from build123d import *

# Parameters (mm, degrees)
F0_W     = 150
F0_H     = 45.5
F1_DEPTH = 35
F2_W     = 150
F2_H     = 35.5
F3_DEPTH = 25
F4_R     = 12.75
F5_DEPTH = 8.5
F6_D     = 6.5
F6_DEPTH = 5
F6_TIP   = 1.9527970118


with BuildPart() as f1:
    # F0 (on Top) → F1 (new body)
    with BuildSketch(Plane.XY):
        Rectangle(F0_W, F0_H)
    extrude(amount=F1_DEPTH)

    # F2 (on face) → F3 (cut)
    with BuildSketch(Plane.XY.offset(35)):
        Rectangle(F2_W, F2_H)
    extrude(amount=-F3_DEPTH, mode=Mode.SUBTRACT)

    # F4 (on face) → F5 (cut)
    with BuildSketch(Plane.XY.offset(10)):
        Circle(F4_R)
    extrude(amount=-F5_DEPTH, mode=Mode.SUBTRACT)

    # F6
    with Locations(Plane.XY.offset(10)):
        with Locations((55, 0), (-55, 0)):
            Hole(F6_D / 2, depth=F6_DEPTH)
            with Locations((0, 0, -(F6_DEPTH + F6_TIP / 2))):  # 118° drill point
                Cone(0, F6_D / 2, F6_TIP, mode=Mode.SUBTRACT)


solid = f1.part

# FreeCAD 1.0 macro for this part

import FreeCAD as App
import Part
import Sketcher


def add_polygon(sketch, points):
    """Adds a closed chain of lines whose ends are joined by coincident constraints."""
    first, n = sketch.GeometryCount, len(points)
    for a, b in zip(points, points[1:] + points[:1]):
        sketch.addGeometry(Part.LineSegment(App.Vector(*a, 0), App.Vector(*b, 0)), False)
    for i in range(n):
        sketch.addConstraint(Sketcher.Constraint("Coincident", first + i, 2, first + (i + 1) % n, 1))

doc = App.newDocument("Part")
body = doc.addObject("PartDesign::Body", "Body")

sketch1 = doc.addObject("Sketcher::SketchObject", "Sketch")
body.addObject(sketch1)
sketch1.AttachmentSupport = (doc.XY_Plane, [""])
sketch1.MapMode = "FlatFace"
add_polygon(sketch1, [(-75, 22.75), (-75, -22.75), (75, -22.75), (75, 22.75)])
sketch1.addConstraint(Sketcher.Constraint("Vertical", 0))
sketch1.addConstraint(Sketcher.Constraint("Horizontal", 1))
sketch1.addConstraint(Sketcher.Constraint("Vertical", 2))
sketch1.addConstraint(Sketcher.Constraint("Horizontal", 3))
sketch1.addConstraint(Sketcher.Constraint("Symmetric", 0, 2, 2, 2, -1, 1))
sketch1.addConstraint(Sketcher.Constraint("DistanceX", 1, 1, 1, 2, 150.0))
sketch1.addConstraint(Sketcher.Constraint("DistanceY", 0, 2, 0, 1, 45.5))
pad1 = doc.addObject("PartDesign::Pad", "Pad")
body.addObject(pad1)
pad1.Profile = sketch1
pad1.Length = 35

sketch2 = doc.addObject("Sketcher::SketchObject", "Sketch001")
body.addObject(sketch2)
sketch2.AttachmentSupport = (doc.XY_Plane, [""])
sketch2.MapMode = "FlatFace"
sketch2.AttachmentOffset = App.Placement(App.Vector(0, 0, 35), App.Rotation())
add_polygon(sketch2, [(-75, 17.75), (-75, -17.75), (75, -17.75), (75, 17.75)])
sketch2.addConstraint(Sketcher.Constraint("Vertical", 0))
sketch2.addConstraint(Sketcher.Constraint("Horizontal", 1))
sketch2.addConstraint(Sketcher.Constraint("Vertical", 2))
sketch2.addConstraint(Sketcher.Constraint("Horizontal", 3))
sketch2.addConstraint(Sketcher.Constraint("Symmetric", 0, 2, 2, 2, -1, 1))
sketch2.addConstraint(Sketcher.Constraint("DistanceX", 1, 1, 1, 2, 150.0))
sketch2.addConstraint(Sketcher.Constraint("DistanceY", 0, 2, 0, 1, 35.5))
pocket1 = doc.addObject("PartDesign::Pocket", "Pocket")
body.addObject(pocket1)
pocket1.Profile = sketch2
pocket1.Length = 25

sketch3 = doc.addObject("Sketcher::SketchObject", "Sketch002")
body.addObject(sketch3)
sketch3.AttachmentSupport = (doc.XY_Plane, [""])
sketch3.MapMode = "FlatFace"
sketch3.AttachmentOffset = App.Placement(App.Vector(0, 0, 10), App.Rotation())
sketch3.addGeometry(Part.Circle(App.Vector(0, 0, 0), App.Vector(0, 0, 1), 12.75), False)
sketch3.addConstraint(Sketcher.Constraint("Coincident", 0, 3, -1, 1))
sketch3.addConstraint(Sketcher.Constraint("Diameter", 0, 25.5))
pocket2 = doc.addObject("PartDesign::Pocket", "Pocket001")
body.addObject(pocket2)
pocket2.Profile = sketch3
pocket2.Length = 8.5

sketch4 = doc.addObject("Sketcher::SketchObject", "Sketch003")
body.addObject(sketch4)
sketch4.AttachmentSupport = (doc.XY_Plane, [""])
sketch4.MapMode = "FlatFace"
sketch4.AttachmentOffset = App.Placement(App.Vector(0, 0, 10), App.Rotation())
sketch4.addGeometry(Part.Circle(App.Vector(55, 0, 0), App.Vector(0, 0, 1), 3.25), False)
sketch4.addGeometry(Part.Circle(App.Vector(-55, 0, 0), App.Vector(0, 0, 1), 3.25), False)
sketch4.addConstraint(Sketcher.Constraint("Equal", 0, 1))
sketch4.addConstraint(Sketcher.Constraint("Symmetric", 0, 3, 1, 3, -1, 1))
sketch4.addConstraint(Sketcher.Constraint("PointOnObject", 0, 3, -1))
sketch4.addConstraint(Sketcher.Constraint("Diameter", 0, 6.5))
sketch4.addConstraint(Sketcher.Constraint("DistanceX", -1, 1, 0, 3, 55.0))
doc.recompute()
hole = doc.addObject("PartDesign::Hole", "Hole")
body.addObject(hole)
hole.Profile = sketch4
hole.ThreadType = "None"
hole.Diameter = 6.5
hole.DepthType = "Dimension"
hole.Depth = 5
hole.DrillPoint = "Angled"
hole.DrillPointAngle = 118

doc.recompute()
